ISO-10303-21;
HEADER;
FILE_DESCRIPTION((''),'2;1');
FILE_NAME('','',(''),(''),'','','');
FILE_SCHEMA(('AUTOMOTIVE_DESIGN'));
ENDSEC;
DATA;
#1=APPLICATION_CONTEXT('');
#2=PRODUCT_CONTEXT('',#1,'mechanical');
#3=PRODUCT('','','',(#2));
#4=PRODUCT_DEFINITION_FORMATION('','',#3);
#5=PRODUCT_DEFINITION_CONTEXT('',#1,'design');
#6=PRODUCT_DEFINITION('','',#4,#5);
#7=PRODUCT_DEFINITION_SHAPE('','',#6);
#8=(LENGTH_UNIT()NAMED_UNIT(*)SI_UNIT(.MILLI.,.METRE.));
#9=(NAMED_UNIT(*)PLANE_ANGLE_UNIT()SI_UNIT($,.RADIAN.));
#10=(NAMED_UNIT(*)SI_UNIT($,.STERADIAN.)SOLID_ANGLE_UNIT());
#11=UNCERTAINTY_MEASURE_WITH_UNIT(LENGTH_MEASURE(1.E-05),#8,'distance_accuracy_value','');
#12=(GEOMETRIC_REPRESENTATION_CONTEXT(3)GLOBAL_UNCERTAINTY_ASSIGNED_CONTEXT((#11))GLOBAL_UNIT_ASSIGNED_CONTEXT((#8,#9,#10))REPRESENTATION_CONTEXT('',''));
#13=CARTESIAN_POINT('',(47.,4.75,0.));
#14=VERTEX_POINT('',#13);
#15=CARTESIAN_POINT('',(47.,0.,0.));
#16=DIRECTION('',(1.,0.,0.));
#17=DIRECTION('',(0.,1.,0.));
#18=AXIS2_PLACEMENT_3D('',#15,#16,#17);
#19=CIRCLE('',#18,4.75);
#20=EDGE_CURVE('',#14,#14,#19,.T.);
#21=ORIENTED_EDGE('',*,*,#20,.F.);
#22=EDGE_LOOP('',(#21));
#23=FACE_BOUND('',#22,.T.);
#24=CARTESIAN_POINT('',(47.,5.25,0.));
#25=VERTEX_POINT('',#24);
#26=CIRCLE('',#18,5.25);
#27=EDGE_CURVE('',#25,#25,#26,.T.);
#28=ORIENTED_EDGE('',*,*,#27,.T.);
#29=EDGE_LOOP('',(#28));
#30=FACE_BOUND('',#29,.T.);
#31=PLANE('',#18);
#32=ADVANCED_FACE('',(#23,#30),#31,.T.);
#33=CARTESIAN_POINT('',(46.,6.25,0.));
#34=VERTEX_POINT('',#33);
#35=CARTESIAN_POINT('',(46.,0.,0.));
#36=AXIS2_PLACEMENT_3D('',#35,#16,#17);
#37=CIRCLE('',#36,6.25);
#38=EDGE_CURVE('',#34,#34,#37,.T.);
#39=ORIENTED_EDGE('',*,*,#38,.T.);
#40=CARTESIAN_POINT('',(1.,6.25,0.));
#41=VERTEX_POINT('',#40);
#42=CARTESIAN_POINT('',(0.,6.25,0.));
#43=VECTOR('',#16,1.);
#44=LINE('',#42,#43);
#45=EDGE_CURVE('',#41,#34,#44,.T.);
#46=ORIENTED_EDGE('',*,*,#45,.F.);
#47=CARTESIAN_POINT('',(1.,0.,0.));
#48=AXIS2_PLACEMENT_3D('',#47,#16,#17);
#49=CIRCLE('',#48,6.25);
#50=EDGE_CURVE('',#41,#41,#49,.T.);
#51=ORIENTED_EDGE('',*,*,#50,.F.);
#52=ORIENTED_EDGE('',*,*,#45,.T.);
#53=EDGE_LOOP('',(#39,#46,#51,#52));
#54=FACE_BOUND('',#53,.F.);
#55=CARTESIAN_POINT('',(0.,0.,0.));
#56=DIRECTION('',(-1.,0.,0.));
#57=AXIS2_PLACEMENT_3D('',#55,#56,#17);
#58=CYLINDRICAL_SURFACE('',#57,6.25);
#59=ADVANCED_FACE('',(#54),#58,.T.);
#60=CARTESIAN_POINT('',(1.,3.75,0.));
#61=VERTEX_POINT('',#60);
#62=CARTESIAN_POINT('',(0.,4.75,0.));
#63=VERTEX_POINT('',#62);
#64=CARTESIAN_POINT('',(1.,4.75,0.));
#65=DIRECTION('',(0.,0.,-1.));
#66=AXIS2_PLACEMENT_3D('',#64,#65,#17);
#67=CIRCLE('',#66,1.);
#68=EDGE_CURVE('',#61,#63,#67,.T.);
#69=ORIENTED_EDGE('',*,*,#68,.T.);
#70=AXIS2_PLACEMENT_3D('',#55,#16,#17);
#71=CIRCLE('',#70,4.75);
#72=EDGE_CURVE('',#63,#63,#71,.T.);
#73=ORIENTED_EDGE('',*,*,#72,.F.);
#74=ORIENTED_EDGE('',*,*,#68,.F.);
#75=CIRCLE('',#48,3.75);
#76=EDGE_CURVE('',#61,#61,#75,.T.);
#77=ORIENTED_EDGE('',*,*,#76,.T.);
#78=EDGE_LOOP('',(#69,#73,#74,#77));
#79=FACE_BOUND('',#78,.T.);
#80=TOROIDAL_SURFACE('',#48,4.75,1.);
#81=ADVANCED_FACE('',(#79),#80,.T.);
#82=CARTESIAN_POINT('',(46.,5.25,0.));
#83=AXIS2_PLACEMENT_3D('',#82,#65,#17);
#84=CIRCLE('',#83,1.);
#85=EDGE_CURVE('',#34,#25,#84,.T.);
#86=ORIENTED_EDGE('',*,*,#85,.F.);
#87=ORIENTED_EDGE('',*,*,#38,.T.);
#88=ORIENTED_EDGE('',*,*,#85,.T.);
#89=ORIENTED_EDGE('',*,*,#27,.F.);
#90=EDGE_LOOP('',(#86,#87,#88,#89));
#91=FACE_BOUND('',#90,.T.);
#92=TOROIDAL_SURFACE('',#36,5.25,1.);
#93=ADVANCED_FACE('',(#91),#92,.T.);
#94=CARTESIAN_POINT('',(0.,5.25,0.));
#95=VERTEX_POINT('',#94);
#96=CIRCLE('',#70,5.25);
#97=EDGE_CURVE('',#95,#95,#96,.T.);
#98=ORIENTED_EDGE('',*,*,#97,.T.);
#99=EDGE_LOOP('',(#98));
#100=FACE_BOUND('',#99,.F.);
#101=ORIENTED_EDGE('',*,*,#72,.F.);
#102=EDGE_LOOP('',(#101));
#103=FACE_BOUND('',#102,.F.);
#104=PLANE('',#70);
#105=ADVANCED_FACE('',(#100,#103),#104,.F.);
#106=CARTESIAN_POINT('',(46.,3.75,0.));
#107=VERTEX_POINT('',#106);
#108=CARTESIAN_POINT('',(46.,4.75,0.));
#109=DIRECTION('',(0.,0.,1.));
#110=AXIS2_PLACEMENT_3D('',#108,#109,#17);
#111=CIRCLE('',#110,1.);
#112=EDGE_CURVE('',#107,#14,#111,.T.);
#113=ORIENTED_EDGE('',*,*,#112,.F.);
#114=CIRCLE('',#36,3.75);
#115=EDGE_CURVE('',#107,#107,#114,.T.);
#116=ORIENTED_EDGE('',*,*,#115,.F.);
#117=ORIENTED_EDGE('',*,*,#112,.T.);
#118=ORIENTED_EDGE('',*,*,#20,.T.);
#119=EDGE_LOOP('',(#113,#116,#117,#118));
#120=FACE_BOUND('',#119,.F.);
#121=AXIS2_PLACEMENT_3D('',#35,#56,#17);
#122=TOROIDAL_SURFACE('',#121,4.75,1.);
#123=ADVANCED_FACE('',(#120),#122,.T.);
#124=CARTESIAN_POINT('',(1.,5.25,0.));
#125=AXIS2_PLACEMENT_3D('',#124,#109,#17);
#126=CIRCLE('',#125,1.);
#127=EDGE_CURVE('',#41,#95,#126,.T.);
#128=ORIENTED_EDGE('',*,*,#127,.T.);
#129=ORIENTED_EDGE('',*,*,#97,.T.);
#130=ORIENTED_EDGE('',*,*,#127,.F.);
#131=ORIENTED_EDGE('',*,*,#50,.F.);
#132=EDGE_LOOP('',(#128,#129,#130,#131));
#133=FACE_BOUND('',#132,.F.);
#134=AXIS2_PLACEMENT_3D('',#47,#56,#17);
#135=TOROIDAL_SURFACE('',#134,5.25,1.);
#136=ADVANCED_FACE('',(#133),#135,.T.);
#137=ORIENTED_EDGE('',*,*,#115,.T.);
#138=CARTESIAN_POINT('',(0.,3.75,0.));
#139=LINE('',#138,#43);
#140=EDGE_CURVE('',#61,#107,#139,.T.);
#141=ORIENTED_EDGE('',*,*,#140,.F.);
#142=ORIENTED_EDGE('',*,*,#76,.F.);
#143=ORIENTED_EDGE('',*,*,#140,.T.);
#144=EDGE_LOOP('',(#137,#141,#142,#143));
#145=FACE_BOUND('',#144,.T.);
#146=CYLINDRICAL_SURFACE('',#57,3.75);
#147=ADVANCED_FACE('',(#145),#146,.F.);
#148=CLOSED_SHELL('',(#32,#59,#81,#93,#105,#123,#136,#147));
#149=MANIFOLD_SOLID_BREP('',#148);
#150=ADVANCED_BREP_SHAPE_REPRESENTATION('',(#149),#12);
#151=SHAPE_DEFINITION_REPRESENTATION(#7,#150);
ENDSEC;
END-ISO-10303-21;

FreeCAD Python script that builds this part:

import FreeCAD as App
import Part
import Sketcher
from FreeCAD import Vector
Q = App.Units.Quantity


def edges_at(feature, points):
    """Names of the edges that pass closest to the given points."""
    edges = feature.Shape.Edges
    near = lambda p: min(range(len(edges)), key=lambda i: edges[i].distToShape(Part.Vertex(*p))[0])
    return sorted({f"Edge{near(p) + 1}" for p in points})

doc = App.newDocument("Part")
body = doc.addObject("PartDesign::Body", "Body")

sketch1 = body.newObject("Sketcher::SketchObject", "Sketch")
sketch1.AttachmentSupport = (doc.getObject("YZ_Plane"), [""])
sketch1.MapMode = "FlatFace"
sketch1.addGeometry([
    Part.Circle(Vector(0, 0, 0), Vector(0, 0, 1), 6.2),
    Part.Circle(Vector(0, 0, 0), Vector(0, 0, 1), 3.8),
], False)
sketch1.addConstraint([
    Sketcher.Constraint("Coincident", 0, 3, -1, 1),
    Sketcher.Constraint("Coincident", 1, 3, -1, 1),
    Sketcher.Constraint("Diameter", 0, Q("12.5 mm")),
    Sketcher.Constraint("Diameter", 1, Q("7.5 mm")),
])
pad1 = body.newObject("PartDesign::Pad", "Pad")
pad1.Profile = sketch1
pad1.Length = 47
doc.recompute()

fillet = body.newObject("PartDesign::Fillet", "Fillet")
fillet.Base = (pad1, edges_at(pad1, [
    (0, -6.25, 0),
    (0, -3.75, 0),
    (47, -6.25, 0),
    (47, -3.75, 0),
]))
fillet.Radius = 1

doc.recompute()
